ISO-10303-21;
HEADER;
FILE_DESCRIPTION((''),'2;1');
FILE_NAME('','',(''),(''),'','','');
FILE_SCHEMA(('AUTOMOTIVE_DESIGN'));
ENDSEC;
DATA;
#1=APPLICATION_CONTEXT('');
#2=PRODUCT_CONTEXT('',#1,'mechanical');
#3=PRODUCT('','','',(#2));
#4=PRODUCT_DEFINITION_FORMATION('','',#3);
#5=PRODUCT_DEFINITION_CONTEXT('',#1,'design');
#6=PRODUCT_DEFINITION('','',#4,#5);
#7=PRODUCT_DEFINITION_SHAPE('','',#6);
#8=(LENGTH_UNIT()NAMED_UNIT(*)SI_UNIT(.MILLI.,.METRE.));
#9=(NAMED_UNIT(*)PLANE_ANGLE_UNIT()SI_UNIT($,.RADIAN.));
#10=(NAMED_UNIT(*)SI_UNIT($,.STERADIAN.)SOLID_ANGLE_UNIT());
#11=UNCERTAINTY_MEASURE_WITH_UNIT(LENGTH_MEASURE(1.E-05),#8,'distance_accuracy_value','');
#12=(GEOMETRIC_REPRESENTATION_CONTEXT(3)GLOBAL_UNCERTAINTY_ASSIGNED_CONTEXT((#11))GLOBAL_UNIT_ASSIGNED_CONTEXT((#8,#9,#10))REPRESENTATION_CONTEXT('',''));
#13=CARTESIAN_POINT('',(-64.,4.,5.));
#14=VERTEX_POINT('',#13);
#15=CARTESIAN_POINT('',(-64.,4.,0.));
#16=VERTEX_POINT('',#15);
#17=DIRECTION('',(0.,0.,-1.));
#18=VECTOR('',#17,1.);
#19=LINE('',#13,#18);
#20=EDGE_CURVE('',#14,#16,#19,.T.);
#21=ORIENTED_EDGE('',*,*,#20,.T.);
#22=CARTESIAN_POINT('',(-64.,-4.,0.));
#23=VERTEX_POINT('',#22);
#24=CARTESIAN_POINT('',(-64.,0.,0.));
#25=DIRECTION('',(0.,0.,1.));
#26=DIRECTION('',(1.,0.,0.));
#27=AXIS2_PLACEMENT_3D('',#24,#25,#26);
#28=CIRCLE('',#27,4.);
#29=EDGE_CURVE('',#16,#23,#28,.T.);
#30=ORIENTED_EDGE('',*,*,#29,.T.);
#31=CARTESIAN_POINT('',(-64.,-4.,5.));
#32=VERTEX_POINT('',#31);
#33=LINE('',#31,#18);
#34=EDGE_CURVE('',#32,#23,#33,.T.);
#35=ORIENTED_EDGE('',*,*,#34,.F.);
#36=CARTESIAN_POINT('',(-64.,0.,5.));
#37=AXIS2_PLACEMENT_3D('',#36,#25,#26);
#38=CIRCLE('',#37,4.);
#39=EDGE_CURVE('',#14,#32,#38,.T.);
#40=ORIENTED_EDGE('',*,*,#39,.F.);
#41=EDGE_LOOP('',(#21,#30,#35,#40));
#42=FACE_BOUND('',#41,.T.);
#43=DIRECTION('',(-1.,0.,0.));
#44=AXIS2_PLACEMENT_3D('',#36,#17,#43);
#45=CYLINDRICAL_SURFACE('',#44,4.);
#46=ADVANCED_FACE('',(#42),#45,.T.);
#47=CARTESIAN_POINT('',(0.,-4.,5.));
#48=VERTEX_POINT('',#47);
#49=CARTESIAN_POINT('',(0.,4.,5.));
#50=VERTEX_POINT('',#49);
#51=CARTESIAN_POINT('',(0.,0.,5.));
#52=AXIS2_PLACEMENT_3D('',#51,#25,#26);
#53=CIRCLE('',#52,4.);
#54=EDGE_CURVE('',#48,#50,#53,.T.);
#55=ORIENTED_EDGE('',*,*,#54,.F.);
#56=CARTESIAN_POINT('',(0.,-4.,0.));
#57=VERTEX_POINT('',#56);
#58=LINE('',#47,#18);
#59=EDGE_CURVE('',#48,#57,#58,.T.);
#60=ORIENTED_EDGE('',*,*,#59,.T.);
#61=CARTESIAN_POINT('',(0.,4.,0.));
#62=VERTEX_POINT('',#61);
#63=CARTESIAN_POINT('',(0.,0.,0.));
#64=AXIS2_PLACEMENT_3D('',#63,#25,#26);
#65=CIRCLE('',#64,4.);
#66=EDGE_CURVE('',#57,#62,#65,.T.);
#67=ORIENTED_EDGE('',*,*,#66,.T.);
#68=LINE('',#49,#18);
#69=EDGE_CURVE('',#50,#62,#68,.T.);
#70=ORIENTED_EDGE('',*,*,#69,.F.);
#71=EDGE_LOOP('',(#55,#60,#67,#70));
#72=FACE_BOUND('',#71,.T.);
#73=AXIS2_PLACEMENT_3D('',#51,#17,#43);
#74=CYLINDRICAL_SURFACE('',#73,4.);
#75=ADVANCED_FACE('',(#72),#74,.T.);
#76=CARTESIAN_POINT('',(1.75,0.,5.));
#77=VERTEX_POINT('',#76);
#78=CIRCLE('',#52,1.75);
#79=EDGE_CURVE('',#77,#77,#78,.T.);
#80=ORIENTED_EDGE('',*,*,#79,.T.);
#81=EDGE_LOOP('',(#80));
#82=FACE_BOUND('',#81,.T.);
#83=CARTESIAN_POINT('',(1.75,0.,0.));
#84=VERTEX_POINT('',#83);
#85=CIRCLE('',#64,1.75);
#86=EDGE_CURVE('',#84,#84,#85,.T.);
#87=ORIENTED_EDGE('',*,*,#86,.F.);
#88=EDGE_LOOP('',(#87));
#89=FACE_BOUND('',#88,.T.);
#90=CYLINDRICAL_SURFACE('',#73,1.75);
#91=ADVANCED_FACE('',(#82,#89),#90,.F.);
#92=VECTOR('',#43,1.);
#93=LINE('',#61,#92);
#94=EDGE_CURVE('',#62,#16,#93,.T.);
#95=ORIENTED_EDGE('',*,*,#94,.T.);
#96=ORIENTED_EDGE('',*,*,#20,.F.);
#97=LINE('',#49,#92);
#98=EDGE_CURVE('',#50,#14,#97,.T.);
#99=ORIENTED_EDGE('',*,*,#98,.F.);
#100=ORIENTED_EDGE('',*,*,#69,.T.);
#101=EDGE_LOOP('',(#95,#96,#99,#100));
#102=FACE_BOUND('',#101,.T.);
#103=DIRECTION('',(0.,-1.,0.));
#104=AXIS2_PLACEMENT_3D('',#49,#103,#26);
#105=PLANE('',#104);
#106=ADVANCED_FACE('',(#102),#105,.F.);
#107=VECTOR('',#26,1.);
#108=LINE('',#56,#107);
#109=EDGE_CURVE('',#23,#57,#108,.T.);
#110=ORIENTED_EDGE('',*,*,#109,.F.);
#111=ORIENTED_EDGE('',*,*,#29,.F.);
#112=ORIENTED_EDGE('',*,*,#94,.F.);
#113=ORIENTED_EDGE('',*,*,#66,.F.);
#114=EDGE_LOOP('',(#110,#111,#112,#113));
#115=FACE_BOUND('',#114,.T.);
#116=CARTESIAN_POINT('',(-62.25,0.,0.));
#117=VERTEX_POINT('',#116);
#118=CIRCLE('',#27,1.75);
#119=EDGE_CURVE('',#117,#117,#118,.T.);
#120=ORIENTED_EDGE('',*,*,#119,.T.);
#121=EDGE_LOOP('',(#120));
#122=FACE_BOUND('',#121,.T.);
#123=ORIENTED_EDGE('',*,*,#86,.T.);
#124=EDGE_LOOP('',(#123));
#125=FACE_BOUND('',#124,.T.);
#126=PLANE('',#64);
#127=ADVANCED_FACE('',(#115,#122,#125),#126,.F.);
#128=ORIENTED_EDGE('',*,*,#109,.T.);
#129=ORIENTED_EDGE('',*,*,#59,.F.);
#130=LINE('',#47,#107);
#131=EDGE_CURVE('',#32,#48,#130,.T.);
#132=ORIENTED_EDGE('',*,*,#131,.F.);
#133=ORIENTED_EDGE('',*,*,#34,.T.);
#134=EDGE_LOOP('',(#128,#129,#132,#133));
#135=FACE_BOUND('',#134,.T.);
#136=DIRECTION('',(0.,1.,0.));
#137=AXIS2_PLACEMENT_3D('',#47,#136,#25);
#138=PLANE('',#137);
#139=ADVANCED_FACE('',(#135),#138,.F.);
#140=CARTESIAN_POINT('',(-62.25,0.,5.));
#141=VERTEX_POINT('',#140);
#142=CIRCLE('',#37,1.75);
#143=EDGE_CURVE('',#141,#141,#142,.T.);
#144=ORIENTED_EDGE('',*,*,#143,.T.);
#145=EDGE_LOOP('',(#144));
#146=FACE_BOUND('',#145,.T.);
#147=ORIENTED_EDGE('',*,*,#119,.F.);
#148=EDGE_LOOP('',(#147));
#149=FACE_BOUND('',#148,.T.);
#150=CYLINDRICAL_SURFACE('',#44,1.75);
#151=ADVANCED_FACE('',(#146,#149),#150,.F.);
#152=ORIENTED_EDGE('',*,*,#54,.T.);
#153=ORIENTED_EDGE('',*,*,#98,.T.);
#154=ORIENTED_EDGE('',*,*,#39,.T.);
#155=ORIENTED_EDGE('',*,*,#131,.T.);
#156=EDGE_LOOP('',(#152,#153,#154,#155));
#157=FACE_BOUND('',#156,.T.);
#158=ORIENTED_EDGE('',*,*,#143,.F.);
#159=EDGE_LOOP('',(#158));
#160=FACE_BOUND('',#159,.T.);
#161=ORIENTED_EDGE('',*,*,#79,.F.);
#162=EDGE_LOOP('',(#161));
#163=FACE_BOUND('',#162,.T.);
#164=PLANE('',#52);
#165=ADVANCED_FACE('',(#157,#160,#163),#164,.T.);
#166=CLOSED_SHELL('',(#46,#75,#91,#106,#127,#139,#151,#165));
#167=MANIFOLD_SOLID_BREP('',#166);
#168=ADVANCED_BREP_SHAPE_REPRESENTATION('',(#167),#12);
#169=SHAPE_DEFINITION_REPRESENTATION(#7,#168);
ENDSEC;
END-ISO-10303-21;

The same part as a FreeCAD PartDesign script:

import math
import FreeCAD as App
import Part
import Sketcher
from FreeCAD import Vector
Q = App.Units.Quantity

doc = App.newDocument("Part")
body = doc.addObject("PartDesign::Body", "Body")

# Sketch on XY plane
sketch1 = body.newObject("Sketcher::SketchObject", "Sketch")
sketch1.AttachmentSupport = (doc.getObject("XY_Plane"), [""])
sketch1.MapMode = "FlatFace"
sketch1.addGeometry([
    Part.LineSegment(Vector(-64, -4, 0), Vector(0, -4, 0)),  # 0
    Part.ArcOfCircle(Part.Circle(Vector(0, 0, 0), Vector(0, 0, 1), 4), math.radians(-90), math.radians(90)),  # 1
    Part.LineSegment(Vector(0, 4, 0), Vector(-64, 4, 0)),  # 2
    Part.ArcOfCircle(Part.Circle(Vector(-64, 0, 0), Vector(0, 0, 1), 4), math.radians(90), math.radians(270)),  # 3
    Part.Circle(Vector(0, 0, 0), Vector(0, 0, 1), 1.8),  # 4
    Part.Circle(Vector(-64, 0, 0), Vector(0, 0, 1), 1.8),  # 5
], False)
sketch1.addConstraint([
    Sketcher.Constraint("Tangent", 0, 2, 1, 1),
    Sketcher.Constraint("Tangent", 1, 2, 2, 1),
    Sketcher.Constraint("Tangent", 2, 2, 3, 1),
    Sketcher.Constraint("Tangent", 3, 2, 0, 1),
    Sketcher.Constraint("Horizontal", 0),
    Sketcher.Constraint("Horizontal", 2),
    Sketcher.Constraint("Coincident", 1, 3, -1, 1),
    Sketcher.Constraint("Coincident", 4, 3, -1, 1),
    Sketcher.Constraint("Coincident", 5, 3, 3, 3),
    Sketcher.Constraint("Equal", 4, 5),
    Sketcher.Constraint("Radius", 1, Q("4 mm")),
    Sketcher.Constraint("Diameter", 4, Q("3.5 mm")),
    Sketcher.Constraint("DistanceX", 0, 1, 0, 2, Q("64 mm")),
])
pad1 = body.newObject("PartDesign::Pad", "Pad")
pad1.Profile = sketch1
pad1.Length = 5

doc.recompute()
